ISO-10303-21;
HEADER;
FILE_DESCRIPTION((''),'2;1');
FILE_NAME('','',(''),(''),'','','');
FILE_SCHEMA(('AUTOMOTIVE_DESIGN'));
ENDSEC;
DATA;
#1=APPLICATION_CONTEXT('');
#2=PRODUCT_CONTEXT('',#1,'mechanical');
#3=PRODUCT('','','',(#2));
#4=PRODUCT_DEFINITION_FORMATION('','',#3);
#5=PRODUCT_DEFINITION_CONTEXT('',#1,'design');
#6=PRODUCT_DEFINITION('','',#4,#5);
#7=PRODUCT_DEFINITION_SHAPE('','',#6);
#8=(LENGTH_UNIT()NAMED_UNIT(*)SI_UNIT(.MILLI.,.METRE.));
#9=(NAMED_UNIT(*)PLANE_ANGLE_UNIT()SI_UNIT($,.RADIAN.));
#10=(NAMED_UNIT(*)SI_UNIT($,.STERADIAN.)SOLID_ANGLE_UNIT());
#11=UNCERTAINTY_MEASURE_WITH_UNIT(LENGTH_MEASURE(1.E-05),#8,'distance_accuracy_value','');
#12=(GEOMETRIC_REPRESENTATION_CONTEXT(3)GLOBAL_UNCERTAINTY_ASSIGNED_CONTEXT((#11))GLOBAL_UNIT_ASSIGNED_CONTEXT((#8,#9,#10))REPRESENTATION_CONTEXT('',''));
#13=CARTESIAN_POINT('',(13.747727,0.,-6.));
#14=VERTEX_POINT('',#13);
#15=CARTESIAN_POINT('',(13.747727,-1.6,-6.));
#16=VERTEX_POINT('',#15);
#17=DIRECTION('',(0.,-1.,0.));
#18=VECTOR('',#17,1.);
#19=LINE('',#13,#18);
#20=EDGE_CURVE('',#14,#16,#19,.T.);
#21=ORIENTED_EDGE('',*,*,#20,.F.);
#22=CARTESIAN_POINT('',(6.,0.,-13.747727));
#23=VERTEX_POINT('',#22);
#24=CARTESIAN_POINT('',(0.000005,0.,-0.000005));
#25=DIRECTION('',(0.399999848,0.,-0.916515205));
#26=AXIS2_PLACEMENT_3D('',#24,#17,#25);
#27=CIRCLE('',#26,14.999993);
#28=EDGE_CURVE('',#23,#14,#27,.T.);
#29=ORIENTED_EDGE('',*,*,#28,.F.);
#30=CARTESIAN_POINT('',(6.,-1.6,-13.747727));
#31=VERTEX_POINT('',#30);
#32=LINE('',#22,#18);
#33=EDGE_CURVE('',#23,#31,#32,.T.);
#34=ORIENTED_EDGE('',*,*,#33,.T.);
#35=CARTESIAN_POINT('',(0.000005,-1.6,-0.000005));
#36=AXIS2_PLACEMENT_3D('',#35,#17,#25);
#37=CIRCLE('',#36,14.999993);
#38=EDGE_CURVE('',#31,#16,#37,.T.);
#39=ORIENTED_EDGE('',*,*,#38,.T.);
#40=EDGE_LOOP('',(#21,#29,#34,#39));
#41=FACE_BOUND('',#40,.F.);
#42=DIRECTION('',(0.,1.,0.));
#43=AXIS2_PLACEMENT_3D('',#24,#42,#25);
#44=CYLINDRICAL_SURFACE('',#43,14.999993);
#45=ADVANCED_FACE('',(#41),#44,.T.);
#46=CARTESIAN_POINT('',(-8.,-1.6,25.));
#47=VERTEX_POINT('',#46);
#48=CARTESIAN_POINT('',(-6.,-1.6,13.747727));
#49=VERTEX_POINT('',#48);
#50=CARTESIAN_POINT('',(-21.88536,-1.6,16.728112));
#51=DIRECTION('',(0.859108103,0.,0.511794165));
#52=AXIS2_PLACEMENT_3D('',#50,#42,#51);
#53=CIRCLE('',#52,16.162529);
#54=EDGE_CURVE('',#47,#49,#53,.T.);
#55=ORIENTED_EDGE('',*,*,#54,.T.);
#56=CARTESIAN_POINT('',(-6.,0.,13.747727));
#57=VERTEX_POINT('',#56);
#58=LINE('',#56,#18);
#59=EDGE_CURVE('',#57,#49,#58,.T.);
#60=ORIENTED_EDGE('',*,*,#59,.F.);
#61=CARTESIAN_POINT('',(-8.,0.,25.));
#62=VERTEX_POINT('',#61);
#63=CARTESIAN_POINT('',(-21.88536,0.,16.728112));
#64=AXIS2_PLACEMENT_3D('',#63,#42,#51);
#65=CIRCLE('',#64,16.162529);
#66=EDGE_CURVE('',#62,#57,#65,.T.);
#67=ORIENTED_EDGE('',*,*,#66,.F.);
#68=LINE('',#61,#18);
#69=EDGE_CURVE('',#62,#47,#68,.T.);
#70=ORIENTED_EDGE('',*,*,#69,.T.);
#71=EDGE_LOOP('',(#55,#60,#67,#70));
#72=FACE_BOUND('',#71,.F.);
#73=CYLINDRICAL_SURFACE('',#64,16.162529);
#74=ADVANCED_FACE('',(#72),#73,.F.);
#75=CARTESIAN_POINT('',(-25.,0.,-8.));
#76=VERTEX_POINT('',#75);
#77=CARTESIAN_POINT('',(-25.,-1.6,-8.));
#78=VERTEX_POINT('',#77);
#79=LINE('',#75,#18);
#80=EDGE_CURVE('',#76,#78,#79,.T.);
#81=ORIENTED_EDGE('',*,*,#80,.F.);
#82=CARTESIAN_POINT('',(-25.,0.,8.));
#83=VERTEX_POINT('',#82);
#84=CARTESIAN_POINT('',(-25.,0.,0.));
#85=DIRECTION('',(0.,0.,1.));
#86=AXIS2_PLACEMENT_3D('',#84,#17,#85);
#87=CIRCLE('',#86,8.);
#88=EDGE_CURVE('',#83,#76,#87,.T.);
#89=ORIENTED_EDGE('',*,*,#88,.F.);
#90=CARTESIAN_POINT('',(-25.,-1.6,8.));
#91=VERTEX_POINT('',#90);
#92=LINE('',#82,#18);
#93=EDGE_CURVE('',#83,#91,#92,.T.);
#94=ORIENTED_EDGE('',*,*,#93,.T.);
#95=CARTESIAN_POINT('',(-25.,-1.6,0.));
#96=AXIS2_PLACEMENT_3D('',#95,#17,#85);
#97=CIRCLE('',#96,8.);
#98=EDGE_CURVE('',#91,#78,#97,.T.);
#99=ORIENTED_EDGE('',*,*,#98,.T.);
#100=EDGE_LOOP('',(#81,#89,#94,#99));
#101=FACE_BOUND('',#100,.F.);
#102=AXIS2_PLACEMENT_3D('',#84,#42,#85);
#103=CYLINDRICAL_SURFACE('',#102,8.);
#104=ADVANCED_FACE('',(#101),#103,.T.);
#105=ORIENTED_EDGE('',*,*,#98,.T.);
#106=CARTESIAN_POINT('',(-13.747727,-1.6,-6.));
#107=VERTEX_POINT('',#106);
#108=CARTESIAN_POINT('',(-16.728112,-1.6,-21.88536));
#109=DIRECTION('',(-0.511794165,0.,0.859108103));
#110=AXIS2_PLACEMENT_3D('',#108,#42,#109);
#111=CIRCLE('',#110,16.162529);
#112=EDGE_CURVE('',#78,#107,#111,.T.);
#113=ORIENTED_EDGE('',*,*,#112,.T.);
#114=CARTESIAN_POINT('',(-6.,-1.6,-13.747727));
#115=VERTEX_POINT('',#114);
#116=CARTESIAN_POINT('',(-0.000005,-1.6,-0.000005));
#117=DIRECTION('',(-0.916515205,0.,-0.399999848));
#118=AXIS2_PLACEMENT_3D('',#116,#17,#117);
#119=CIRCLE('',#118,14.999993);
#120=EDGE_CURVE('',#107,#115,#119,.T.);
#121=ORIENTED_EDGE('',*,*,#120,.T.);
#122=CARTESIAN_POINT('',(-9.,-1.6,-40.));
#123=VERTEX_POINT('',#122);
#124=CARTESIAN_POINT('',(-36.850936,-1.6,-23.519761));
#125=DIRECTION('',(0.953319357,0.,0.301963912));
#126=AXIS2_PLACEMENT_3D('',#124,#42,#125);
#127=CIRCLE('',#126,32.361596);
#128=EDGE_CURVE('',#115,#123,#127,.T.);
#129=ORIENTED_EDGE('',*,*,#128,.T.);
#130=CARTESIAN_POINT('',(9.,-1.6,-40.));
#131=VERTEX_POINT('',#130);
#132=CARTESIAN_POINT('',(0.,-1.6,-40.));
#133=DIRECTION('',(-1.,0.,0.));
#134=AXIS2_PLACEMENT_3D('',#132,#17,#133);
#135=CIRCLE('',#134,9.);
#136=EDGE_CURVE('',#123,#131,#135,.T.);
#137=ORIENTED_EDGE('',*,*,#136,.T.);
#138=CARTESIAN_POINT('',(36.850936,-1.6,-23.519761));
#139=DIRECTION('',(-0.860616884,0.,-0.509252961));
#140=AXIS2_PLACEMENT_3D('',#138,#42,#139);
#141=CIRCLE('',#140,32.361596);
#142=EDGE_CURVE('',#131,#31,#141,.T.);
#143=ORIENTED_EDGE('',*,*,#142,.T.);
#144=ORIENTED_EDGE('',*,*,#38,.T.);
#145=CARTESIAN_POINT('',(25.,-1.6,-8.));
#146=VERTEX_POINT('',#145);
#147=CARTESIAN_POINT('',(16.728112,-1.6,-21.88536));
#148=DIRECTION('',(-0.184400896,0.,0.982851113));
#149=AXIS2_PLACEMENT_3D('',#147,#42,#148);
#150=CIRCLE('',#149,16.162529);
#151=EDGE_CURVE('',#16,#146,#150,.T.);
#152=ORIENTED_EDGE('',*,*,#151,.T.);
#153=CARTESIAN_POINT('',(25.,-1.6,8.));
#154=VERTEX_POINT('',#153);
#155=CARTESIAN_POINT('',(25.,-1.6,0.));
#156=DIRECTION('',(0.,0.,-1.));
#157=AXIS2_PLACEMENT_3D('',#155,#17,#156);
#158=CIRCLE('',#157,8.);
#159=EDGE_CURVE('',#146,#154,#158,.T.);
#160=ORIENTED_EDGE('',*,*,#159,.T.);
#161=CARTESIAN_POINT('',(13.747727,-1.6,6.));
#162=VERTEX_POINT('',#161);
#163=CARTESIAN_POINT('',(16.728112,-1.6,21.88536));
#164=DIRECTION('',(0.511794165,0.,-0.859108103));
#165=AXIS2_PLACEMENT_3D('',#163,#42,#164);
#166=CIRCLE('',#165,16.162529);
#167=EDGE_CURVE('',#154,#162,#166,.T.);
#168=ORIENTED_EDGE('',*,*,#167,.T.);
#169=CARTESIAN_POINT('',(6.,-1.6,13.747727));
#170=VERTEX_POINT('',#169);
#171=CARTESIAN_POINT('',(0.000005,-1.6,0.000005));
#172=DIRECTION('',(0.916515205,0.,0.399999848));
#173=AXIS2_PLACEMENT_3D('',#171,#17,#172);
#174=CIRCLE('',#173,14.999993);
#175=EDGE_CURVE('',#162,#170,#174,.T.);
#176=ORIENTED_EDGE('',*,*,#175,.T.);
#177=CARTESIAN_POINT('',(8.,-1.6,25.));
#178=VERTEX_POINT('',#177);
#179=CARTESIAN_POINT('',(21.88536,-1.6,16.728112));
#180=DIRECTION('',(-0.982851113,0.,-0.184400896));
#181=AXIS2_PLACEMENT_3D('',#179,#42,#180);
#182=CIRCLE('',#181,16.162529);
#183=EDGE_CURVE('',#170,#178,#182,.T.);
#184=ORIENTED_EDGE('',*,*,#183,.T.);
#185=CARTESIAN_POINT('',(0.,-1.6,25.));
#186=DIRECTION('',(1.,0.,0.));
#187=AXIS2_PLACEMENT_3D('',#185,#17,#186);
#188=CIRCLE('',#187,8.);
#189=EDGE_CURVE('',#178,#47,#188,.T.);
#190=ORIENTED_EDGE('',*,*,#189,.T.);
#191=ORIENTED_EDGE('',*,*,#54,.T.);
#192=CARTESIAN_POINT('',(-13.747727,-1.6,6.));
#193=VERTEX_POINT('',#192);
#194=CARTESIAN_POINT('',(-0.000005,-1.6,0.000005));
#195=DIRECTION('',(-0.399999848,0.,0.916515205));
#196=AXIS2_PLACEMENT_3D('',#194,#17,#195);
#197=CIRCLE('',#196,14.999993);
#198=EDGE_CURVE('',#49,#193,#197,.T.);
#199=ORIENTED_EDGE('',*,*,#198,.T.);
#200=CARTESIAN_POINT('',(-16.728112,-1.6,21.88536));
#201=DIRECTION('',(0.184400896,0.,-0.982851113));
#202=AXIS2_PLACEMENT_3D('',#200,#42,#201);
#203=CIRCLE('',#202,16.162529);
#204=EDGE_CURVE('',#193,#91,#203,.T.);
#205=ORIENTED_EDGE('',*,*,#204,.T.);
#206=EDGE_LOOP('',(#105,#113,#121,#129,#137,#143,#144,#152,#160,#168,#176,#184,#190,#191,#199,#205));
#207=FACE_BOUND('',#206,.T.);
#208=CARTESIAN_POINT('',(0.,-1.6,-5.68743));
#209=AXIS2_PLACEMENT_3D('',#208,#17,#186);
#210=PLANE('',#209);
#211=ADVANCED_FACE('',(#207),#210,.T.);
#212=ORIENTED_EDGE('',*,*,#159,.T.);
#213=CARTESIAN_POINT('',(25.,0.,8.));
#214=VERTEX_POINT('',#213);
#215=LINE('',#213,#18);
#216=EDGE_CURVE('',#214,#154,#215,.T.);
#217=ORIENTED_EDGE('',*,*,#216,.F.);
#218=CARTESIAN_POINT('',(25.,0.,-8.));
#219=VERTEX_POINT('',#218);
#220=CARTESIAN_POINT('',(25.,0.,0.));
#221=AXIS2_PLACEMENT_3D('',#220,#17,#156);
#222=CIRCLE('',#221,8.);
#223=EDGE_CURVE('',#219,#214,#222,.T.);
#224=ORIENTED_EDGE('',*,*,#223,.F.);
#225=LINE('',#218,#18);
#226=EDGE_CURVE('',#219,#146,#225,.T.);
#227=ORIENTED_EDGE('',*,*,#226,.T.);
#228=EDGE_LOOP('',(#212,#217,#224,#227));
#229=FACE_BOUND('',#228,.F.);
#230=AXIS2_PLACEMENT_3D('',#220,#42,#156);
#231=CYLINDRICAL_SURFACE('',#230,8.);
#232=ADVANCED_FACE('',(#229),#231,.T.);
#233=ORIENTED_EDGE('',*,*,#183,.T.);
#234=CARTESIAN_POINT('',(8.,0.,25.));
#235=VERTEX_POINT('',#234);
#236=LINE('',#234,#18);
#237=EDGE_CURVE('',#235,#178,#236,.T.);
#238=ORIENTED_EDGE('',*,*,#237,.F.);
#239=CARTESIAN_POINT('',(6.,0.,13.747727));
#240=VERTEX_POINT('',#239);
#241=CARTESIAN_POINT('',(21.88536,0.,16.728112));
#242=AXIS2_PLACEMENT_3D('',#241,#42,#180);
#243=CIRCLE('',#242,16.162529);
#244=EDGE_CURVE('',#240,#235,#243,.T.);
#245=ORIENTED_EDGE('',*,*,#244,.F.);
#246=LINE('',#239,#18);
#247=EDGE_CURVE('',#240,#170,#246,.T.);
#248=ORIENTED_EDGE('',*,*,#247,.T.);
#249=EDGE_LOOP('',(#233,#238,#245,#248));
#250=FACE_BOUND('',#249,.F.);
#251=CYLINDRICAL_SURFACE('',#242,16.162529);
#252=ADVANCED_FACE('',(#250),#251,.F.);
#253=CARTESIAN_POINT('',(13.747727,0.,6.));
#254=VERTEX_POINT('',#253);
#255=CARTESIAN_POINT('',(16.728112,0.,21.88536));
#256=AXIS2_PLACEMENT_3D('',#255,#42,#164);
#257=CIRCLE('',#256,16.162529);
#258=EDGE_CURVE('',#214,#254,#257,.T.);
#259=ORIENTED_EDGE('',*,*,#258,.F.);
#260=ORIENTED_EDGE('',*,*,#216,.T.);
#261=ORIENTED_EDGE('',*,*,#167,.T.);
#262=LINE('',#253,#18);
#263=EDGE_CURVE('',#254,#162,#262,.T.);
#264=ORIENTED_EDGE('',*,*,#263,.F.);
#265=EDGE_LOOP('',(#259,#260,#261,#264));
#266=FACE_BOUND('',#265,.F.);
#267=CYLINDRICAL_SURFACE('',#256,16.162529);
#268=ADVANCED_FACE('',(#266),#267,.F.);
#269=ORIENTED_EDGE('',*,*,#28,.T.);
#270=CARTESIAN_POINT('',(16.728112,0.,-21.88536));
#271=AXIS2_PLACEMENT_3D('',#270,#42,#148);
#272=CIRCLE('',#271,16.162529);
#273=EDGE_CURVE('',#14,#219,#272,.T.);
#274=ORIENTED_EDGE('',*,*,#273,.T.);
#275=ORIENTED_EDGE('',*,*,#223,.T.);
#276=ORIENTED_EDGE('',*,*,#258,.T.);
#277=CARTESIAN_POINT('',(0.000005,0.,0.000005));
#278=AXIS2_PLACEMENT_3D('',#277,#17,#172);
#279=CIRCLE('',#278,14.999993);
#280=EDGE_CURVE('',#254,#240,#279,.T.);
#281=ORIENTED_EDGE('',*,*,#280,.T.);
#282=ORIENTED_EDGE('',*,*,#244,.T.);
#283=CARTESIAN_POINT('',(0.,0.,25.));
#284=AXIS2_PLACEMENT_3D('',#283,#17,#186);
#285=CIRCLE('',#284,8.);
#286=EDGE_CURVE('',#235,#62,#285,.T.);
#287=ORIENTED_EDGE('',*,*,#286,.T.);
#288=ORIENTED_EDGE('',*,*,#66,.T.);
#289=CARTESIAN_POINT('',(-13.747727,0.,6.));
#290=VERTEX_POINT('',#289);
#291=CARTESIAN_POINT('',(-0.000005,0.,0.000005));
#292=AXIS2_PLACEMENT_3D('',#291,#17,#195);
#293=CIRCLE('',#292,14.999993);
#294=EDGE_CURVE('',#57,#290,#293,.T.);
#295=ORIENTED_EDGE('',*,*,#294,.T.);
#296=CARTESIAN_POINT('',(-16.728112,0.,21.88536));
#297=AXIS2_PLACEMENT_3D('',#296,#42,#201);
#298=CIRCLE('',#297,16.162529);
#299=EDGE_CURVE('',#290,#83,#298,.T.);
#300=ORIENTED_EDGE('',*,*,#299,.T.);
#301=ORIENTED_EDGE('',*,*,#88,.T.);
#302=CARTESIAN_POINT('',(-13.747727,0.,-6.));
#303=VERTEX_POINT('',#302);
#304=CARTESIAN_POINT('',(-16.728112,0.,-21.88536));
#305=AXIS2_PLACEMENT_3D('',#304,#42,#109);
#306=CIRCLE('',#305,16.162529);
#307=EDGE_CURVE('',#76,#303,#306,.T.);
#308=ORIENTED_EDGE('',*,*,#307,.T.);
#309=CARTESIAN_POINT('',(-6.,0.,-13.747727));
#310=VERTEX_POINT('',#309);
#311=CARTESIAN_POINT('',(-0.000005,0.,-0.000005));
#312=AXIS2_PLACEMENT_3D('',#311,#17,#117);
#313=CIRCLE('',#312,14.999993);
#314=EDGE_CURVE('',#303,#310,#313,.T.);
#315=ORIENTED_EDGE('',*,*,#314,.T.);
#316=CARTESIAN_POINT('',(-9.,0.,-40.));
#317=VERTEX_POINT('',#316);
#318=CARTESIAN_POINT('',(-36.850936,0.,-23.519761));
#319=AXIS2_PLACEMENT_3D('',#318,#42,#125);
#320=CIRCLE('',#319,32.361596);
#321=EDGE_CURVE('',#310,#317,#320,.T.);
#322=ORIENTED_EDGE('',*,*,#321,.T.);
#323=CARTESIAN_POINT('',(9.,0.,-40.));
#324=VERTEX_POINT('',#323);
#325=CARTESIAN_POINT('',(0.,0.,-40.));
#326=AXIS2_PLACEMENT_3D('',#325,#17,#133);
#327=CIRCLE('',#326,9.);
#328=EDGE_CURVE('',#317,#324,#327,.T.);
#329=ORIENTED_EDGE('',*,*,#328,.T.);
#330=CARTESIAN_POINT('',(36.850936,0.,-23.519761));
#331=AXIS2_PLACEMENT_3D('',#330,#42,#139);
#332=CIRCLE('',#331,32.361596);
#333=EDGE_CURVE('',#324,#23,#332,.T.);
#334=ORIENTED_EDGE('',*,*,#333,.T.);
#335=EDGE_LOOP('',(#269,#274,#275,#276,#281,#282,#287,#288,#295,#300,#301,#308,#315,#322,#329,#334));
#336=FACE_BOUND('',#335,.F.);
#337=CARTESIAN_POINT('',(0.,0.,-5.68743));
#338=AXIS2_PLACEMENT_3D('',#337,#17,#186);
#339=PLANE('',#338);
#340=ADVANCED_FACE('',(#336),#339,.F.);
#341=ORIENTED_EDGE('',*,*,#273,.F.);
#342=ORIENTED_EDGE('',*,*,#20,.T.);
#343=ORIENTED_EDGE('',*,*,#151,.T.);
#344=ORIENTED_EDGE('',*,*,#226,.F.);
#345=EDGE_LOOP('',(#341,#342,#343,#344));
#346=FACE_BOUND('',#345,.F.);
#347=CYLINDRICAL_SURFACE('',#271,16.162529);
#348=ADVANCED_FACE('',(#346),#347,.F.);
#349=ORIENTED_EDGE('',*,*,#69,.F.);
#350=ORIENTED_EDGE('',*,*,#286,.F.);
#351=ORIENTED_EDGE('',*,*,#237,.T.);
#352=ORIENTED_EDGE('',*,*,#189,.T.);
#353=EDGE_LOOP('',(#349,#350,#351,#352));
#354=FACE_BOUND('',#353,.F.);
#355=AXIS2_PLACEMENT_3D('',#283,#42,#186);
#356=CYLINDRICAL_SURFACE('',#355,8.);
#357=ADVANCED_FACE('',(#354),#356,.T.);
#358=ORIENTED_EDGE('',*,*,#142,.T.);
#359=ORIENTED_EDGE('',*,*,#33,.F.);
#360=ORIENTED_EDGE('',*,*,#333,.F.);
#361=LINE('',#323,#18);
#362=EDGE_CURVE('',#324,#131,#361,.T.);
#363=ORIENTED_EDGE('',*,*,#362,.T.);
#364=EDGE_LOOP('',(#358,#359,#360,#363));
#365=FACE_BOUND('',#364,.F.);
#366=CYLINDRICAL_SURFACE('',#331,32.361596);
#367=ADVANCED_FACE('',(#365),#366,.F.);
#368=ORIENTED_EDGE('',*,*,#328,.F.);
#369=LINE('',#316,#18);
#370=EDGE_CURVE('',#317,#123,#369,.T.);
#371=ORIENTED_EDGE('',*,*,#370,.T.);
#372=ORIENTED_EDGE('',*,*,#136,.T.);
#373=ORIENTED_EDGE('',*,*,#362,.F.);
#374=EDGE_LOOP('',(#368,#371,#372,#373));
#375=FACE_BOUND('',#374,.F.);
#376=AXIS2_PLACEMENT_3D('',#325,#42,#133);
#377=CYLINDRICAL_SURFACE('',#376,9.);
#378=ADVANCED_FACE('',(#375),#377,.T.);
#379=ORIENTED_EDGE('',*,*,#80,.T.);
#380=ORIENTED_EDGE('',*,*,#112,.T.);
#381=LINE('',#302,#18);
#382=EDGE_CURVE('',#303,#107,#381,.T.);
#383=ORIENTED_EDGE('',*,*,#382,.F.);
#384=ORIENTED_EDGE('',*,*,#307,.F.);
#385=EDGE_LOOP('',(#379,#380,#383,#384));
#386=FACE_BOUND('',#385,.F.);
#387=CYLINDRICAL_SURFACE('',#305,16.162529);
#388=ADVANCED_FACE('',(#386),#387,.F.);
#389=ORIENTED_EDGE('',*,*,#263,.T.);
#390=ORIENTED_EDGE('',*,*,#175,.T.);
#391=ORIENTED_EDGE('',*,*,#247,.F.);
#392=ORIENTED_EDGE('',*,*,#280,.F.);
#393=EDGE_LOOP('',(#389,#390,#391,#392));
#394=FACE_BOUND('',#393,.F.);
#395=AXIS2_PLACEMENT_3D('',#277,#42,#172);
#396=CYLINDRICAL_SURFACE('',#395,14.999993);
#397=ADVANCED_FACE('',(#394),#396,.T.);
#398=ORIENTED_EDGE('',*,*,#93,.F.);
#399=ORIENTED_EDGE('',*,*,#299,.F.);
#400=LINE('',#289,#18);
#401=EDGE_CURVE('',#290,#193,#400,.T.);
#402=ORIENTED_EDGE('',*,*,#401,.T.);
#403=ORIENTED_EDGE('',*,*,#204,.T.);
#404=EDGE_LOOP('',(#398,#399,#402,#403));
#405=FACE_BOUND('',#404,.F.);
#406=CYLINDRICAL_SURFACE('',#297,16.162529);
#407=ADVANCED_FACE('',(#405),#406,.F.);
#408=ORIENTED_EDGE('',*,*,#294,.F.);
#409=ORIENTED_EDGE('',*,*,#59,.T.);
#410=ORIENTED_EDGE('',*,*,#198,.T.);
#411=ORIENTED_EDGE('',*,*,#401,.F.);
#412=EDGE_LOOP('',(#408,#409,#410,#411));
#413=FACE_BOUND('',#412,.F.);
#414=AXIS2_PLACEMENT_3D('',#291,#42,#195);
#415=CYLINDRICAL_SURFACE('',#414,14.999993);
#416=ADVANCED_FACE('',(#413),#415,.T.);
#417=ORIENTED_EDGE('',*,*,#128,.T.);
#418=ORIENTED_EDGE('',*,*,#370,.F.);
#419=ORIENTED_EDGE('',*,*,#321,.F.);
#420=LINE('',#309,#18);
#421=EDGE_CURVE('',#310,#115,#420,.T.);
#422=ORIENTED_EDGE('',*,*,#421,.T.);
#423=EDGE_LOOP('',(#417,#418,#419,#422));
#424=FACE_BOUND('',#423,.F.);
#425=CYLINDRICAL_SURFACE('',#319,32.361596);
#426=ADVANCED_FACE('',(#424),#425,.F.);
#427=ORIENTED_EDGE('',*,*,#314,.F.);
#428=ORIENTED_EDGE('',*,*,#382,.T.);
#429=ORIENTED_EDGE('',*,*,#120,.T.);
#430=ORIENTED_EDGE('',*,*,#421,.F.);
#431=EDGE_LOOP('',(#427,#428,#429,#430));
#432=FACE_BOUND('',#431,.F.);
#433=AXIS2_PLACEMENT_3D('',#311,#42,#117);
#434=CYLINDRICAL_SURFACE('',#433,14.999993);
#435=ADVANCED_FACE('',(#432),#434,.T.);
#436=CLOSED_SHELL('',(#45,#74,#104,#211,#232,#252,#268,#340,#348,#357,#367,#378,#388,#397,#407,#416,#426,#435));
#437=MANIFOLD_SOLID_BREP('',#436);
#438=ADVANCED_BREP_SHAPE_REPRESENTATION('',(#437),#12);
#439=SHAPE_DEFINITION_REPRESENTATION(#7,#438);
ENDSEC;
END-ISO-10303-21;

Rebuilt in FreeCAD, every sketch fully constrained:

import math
import FreeCAD as App
import Part
import Sketcher
from FreeCAD import Vector
Q = App.Units.Quantity

doc = App.newDocument("Part")
body = doc.addObject("PartDesign::Body", "Body")

# Sketch on XZ plane
sketch1 = body.newObject("Sketcher::SketchObject", "Sketch")
sketch1.AttachmentSupport = (doc.getObject("XZ_Plane"), [""])
sketch1.MapMode = "FlatFace"
sketch1.addGeometry([
    Part.ArcOfCircle(Part.Circle(Vector(37, -24, 0), Vector(0, 0, 1), 32), math.radians(162), math.radians(211)),  # 0
    Part.ArcOfCircle(Part.Circle(Vector(0, 0, 0), Vector(0, 0, 1), 15), math.radians(-66), math.radians(-24)),  # 1
    Part.ArcOfCircle(Part.Circle(Vector(17, -22, 0), Vector(0, 0, 1), 16), math.radians(59), math.radians(101)),  # 2
    Part.ArcOfCircle(Part.Circle(Vector(25, 0, 0), Vector(0, 0, 1), 8), math.radians(-90), math.radians(90)),  # 3
    Part.ArcOfCircle(Part.Circle(Vector(17, 22, 0), Vector(0, 0, 1), 16), math.radians(-101), math.radians(-59)),  # 4
    Part.ArcOfCircle(Part.Circle(Vector(0, 0, 0), Vector(0, 0, 1), 15), math.radians(24), math.radians(66)),  # 5
    Part.ArcOfCircle(Part.Circle(Vector(22, 17, 0), Vector(0, 0, 1), 16), math.radians(149), math.radians(191)),  # 6
    Part.ArcOfCircle(Part.Circle(Vector(0, 25, 0), Vector(0, 0, 1), 8), math.radians(0), math.radians(180)),  # 7
    Part.ArcOfCircle(Part.Circle(Vector(-22, 17, 0), Vector(0, 0, 1), 16), math.radians(-11), math.radians(31)),  # 8
    Part.ArcOfCircle(Part.Circle(Vector(0, 0, 0), Vector(0, 0, 1), 15), math.radians(114), math.radians(156)),  # 9
    Part.ArcOfCircle(Part.Circle(Vector(-17, 22, 0), Vector(0, 0, 1), 16), math.radians(-121), math.radians(-79)),  # 10
    Part.ArcOfCircle(Part.Circle(Vector(-25, 0, 0), Vector(0, 0, 1), 8), math.radians(90), math.radians(270)),  # 11
    Part.ArcOfCircle(Part.Circle(Vector(-17, -22, 0), Vector(0, 0, 1), 16), math.radians(79), math.radians(121)),  # 12
    Part.ArcOfCircle(Part.Circle(Vector(0, 0, 0), Vector(0, 0, 1), 15), math.radians(-156), math.radians(-114)),  # 13
    Part.ArcOfCircle(Part.Circle(Vector(-37, -24, 0), Vector(0, 0, 1), 32), math.radians(-31), math.radians(18)),  # 14
    Part.ArcOfCircle(Part.Circle(Vector(0, -40, 0), Vector(0, 0, 1), 9), math.radians(180), math.radians(360)),  # 15
], False)
sketch1.addConstraint([
    Sketcher.Constraint("Coincident", 0, 1, 1, 1),
    Sketcher.Constraint("Coincident", 1, 2, 2, 2),
    Sketcher.Constraint("Coincident", 2, 1, 3, 1),
    Sketcher.Constraint("Coincident", 3, 2, 4, 2),
    Sketcher.Constraint("Coincident", 4, 1, 5, 1),
    Sketcher.Constraint("Coincident", 5, 2, 6, 2),
    Sketcher.Constraint("Coincident", 6, 1, 7, 1),
    Sketcher.Constraint("Coincident", 7, 2, 8, 2),
    Sketcher.Constraint("Coincident", 8, 1, 9, 1),
    Sketcher.Constraint("Coincident", 9, 2, 10, 2),
    Sketcher.Constraint("Coincident", 10, 1, 11, 1),
    Sketcher.Constraint("Coincident", 11, 2, 12, 2),
    Sketcher.Constraint("Coincident", 12, 1, 13, 1),
    Sketcher.Constraint("Coincident", 13, 2, 14, 2),
    Sketcher.Constraint("Coincident", 14, 1, 15, 1),
    Sketcher.Constraint("Coincident", 15, 2, 0, 2),
    Sketcher.Constraint("Coincident", 1, 3, -1, 1),
    Sketcher.Constraint("Coincident", 5, 3, -1, 1),
    Sketcher.Constraint("Coincident", 9, 3, -1, 1),
    Sketcher.Constraint("Coincident", 13, 3, -1, 1),
    Sketcher.Constraint("Equal", 2, 4),
    Sketcher.Constraint("Equal", 1, 5),
    Sketcher.Constraint("Equal", 4, 6),
    Sketcher.Constraint("Equal", 3, 7),
    Sketcher.Constraint("Equal", 6, 8),
    Sketcher.Constraint("Equal", 5, 9),
    Sketcher.Constraint("Equal", 8, 10),
    Sketcher.Constraint("Equal", 7, 11),
    Sketcher.Constraint("Equal", 10, 12),
    Sketcher.Constraint("Equal", 9, 13),
    Sketcher.Constraint("Equal", 0, 14),
    Sketcher.Constraint("Symmetric", 2, 3, 10, 3, -1, 1),
    Sketcher.Constraint("Symmetric", 3, 3, 11, 3, -1, 1),
    Sketcher.Constraint("Symmetric", 4, 3, 12, 3, -1, 1),
    Sketcher.Constraint("Symmetric", 6, 3, 8, 3, -2),
    Sketcher.Constraint("Symmetric", 4, 3, 10, 3, -2),
    Sketcher.Constraint("Symmetric", 0, 3, 14, 3, -2),
    Sketcher.Constraint("PointOnObject", 3, 3, -1),
    Sketcher.Constraint("PointOnObject", 7, 3, -2),
    Sketcher.Constraint("PointOnObject", 15, 3, -2),
    Sketcher.Constraint("Horizontal", 7, 3, 6, 1),
    Sketcher.Constraint("Horizontal", 15, 3, 14, 1),
    Sketcher.Constraint("Vertical", 3, 3, 2, 1),
    Sketcher.Constraint("Vertical", 0, 1, 5, 2),
    Sketcher.Constraint("Radius", 3, Q("8 mm")),
    Sketcher.Constraint("Radius", 15, Q("9 mm")),
    Sketcher.Constraint("DistanceX", -1, 1, 3, 3, Q("25 mm")),
    Sketcher.Constraint("DistanceY", -1, 1, 7, 3, Q("25 mm")),
    Sketcher.Constraint("DistanceY", 15, 3, -1, 1, Q("40 mm")),
    Sketcher.Constraint("DistanceX", -1, 1, 0, 1, Q("6 mm")),
    Sketcher.Constraint("DistanceY", 1, 2, -1, 1, Q("6 mm")),
    Sketcher.Constraint("Radius", 2, Q("16.162529 mm")),
    Sketcher.Constraint("Radius", 0, Q("32.361596 mm")),
    Sketcher.Constraint("Radius", 1, Q("14.999993 mm")),
])
pad1 = body.newObject("PartDesign::Pad", "Pad")
pad1.Profile = sketch1
pad1.Length = 1.6

doc.recompute()
